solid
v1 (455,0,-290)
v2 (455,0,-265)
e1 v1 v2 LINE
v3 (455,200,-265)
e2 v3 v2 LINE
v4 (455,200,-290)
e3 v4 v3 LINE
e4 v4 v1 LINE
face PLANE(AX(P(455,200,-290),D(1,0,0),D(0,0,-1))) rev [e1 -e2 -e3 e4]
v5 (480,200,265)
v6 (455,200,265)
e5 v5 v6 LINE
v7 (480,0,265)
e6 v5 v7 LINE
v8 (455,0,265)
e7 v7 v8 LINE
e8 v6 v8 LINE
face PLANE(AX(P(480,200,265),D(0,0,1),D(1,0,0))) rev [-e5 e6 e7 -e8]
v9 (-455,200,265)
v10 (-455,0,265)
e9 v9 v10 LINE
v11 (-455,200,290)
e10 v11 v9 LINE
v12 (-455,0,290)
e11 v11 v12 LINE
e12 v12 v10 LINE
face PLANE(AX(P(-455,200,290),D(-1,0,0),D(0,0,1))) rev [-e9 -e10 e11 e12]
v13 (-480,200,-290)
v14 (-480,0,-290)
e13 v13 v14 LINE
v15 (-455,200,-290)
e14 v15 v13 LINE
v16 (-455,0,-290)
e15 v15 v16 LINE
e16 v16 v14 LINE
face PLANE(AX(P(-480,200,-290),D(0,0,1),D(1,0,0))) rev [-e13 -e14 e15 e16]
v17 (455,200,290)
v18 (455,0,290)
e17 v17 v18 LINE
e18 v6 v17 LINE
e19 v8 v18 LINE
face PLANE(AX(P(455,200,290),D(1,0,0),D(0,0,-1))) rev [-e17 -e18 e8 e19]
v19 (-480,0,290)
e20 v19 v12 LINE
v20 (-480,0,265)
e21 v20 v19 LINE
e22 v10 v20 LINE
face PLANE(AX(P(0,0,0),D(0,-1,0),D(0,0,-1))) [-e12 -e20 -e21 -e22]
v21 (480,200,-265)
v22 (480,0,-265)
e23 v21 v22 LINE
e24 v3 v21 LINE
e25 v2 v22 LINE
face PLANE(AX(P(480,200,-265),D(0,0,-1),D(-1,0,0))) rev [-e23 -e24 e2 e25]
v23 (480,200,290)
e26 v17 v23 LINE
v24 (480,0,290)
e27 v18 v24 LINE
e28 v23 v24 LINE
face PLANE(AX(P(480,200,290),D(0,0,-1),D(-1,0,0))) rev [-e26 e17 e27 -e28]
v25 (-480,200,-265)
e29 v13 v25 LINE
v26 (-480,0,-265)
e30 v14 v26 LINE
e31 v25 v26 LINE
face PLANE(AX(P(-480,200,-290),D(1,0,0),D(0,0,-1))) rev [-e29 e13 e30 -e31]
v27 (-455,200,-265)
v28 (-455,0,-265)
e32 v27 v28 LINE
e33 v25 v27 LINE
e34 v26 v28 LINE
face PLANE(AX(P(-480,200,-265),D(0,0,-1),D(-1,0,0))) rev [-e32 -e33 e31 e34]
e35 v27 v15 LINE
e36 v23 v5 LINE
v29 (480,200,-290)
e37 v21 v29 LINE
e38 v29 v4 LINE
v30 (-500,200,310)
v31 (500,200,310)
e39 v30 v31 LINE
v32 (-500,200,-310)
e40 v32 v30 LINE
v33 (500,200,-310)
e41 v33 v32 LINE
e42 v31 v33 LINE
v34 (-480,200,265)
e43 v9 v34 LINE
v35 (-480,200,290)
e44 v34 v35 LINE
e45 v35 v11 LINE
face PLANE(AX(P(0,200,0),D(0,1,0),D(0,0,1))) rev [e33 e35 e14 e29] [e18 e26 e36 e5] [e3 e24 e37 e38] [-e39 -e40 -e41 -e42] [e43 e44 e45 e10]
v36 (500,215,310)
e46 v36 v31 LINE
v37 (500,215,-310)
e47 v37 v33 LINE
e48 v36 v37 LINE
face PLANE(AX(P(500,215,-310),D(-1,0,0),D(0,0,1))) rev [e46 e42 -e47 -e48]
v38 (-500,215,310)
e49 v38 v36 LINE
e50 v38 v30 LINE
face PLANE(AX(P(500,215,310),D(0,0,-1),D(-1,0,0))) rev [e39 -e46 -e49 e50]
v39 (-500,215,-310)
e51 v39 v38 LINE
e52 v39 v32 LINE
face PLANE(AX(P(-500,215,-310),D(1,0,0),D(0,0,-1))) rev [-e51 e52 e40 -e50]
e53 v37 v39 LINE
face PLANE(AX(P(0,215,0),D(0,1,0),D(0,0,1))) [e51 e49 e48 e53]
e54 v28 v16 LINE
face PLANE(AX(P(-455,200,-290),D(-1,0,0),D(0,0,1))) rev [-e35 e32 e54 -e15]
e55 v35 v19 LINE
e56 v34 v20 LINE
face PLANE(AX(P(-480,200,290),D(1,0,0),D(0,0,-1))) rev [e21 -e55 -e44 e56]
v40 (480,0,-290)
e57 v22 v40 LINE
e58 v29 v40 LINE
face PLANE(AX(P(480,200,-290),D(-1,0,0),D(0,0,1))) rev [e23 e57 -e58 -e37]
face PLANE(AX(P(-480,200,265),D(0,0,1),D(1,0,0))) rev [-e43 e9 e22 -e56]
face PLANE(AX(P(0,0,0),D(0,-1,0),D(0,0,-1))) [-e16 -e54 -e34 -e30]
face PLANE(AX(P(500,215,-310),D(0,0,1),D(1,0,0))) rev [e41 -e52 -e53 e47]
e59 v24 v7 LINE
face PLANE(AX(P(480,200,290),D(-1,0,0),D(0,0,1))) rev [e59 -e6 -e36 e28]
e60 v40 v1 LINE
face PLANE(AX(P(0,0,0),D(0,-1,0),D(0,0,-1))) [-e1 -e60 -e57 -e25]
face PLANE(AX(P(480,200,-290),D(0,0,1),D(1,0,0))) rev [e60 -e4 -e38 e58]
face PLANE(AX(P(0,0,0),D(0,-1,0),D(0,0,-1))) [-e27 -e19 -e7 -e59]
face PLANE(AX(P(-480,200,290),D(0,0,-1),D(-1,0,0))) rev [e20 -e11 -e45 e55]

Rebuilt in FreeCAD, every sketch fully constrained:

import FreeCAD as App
import Part
import Sketcher

V = App.Vector
Q = App.Units.Quantity

doc = App.newDocument("Part")
body = doc.addObject("PartDesign::Body", "Body")

# Sketch on XZ plane
sketch1 = doc.addObject("Sketcher::SketchObject", "Sketch")
body.addObject(sketch1)
sketch1.AttachmentSupport = (doc.XZ_Plane, [""])
sketch1.MapMode = "FlatFace"
sketch1.addGeometry(Part.LineSegment(V(-480, 265, 0), V(-480, 290, 0)), False)
sketch1.addGeometry(Part.LineSegment(V(-480, 290, 0), V(-455, 290, 0)), False)
sketch1.addGeometry(Part.LineSegment(V(-455, 290, 0), V(-455, 265, 0)), False)
sketch1.addGeometry(Part.LineSegment(V(-455, 265, 0), V(-480, 265, 0)), False)
sketch1.addConstraint(Sketcher.Constraint("Coincident", 0, 2, 1, 1))
sketch1.addConstraint(Sketcher.Constraint("Coincident", 1, 2, 2, 1))
sketch1.addConstraint(Sketcher.Constraint("Coincident", 2, 2, 3, 1))
sketch1.addConstraint(Sketcher.Constraint("Coincident", 3, 2, 0, 1))
sketch1.addConstraint(Sketcher.Constraint("Vertical", 0))
sketch1.addConstraint(Sketcher.Constraint("Horizontal", 1))
sketch1.addConstraint(Sketcher.Constraint("Vertical", 2))
sketch1.addConstraint(Sketcher.Constraint("Horizontal", 3))
sketch1.addConstraint(Sketcher.Constraint("Equal", 3, 0))
sketch1.addConstraint(Sketcher.Constraint("DistanceX", 1, 1, 1, 2, Q("25 mm")))
sketch1.addConstraint(Sketcher.Constraint("DistanceX", 0, 2, -1, 1, Q("480 mm")))
sketch1.addConstraint(Sketcher.Constraint("DistanceY", -1, 1, 0, 2, Q("290 mm")))
pad1 = doc.addObject("PartDesign::Pad", "Pad")
body.addObject(pad1)
pad1.Profile = sketch1
pad1.Length = 200
pad1.Reversed = True
body2 = doc.addObject("PartDesign::Body", "Body001")

# Sketch on XZ plane
sketch2 = doc.addObject("Sketcher::SketchObject", "Sketch001")
body2.addObject(sketch2)
sketch2.AttachmentSupport = (doc.getObject("XZ_Plane001"), [""])
sketch2.MapMode = "FlatFace"
sketch2.addGeometry(Part.LineSegment(V(-480, -290, 0), V(-480, -265, 0)), False)
sketch2.addGeometry(Part.LineSegment(V(-480, -265, 0), V(-455, -265, 0)), False)
sketch2.addGeometry(Part.LineSegment(V(-455, -265, 0), V(-455, -290, 0)), False)
sketch2.addGeometry(Part.LineSegment(V(-455, -290, 0), V(-480, -290, 0)), False)
sketch2.addConstraint(Sketcher.Constraint("Coincident", 0, 2, 1, 1))
sketch2.addConstraint(Sketcher.Constraint("Coincident", 1, 2, 2, 1))
sketch2.addConstraint(Sketcher.Constraint("Coincident", 2, 2, 3, 1))
sketch2.addConstraint(Sketcher.Constraint("Coincident", 3, 2, 0, 1))
sketch2.addConstraint(Sketcher.Constraint("Vertical", 0))
sketch2.addConstraint(Sketcher.Constraint("Horizontal", 1))
sketch2.addConstraint(Sketcher.Constraint("Vertical", 2))
sketch2.addConstraint(Sketcher.Constraint("Horizontal", 3))
sketch2.addConstraint(Sketcher.Constraint("Equal", 3, 0))
sketch2.addConstraint(Sketcher.Constraint("DistanceX", 1, 1, 1, 2, Q("25 mm")))
sketch2.addConstraint(Sketcher.Constraint("DistanceX", 0, 2, -1, 1, Q("480 mm")))
sketch2.addConstraint(Sketcher.Constraint("DistanceY", 0, 2, -1, 1, Q("265 mm")))
pad2 = doc.addObject("PartDesign::Pad", "Pad001")
body2.addObject(pad2)
pad2.Profile = sketch2
pad2.Length = 200
pad2.Reversed = True
body3 = doc.addObject("PartDesign::Body", "Body002")

# Sketch on XZ plane
sketch3 = doc.addObject("Sketcher::SketchObject", "Sketch002")
body3.addObject(sketch3)
sketch3.AttachmentSupport = (doc.getObject("XZ_Plane002"), [""])
sketch3.MapMode = "FlatFace"
sketch3.addGeometry(Part.LineSegment(V(455, -290, 0), V(455, -265, 0)), False)
sketch3.addGeometry(Part.LineSegment(V(455, -265, 0), V(480, -265, 0)), False)
sketch3.addGeometry(Part.LineSegment(V(480, -265, 0), V(480, -290, 0)), False)
sketch3.addGeometry(Part.LineSegment(V(480, -290, 0), V(455, -290, 0)), False)
sketch3.addConstraint(Sketcher.Constraint("Coincident", 0, 2, 1, 1))
sketch3.addConstraint(Sketcher.Constraint("Coincident", 1, 2, 2, 1))
sketch3.addConstraint(Sketcher.Constraint("Coincident", 2, 2, 3, 1))
sketch3.addConstraint(Sketcher.Constraint("Coincident", 3, 2, 0, 1))
sketch3.addConstraint(Sketcher.Constraint("Vertical", 0))
sketch3.addConstraint(Sketcher.Constraint("Horizontal", 1))
sketch3.addConstraint(Sketcher.Constraint("Vertical", 2))
sketch3.addConstraint(Sketcher.Constraint("Horizontal", 3))
sketch3.addConstraint(Sketcher.Constraint("Equal", 3, 0))
sketch3.addConstraint(Sketcher.Constraint("DistanceX", 1, 1, 1, 2, Q("25 mm")))
sketch3.addConstraint(Sketcher.Constraint("DistanceX", -1, 1, 0, 2, Q("455 mm")))
sketch3.addConstraint(Sketcher.Constraint("DistanceY", 0, 2, -1, 1, Q("265 mm")))
pad3 = doc.addObject("PartDesign::Pad", "Pad002")
body3.addObject(pad3)
pad3.Profile = sketch3
pad3.Length = 200
pad3.Reversed = True
body4 = doc.addObject("PartDesign::Body", "Body003")

# Sketch on XZ plane
sketch4 = doc.addObject("Sketcher::SketchObject", "Sketch003")
body4.addObject(sketch4)
sketch4.AttachmentSupport = (doc.getObject("XZ_Plane003"), [""])
sketch4.MapMode = "FlatFace"
sketch4.addGeometry(Part.LineSegment(V(455, 265, 0), V(455, 290, 0)), False)
sketch4.addGeometry(Part.LineSegment(V(455, 290, 0), V(480, 290, 0)), False)
sketch4.addGeometry(Part.LineSegment(V(480, 290, 0), V(480, 265, 0)), False)
sketch4.addGeometry(Part.LineSegment(V(480, 265, 0), V(455, 265, 0)), False)
sketch4.addConstraint(Sketcher.Constraint("Coincident", 0, 2, 1, 1))
sketch4.addConstraint(Sketcher.Constraint("Coincident", 1, 2, 2, 1))
sketch4.addConstraint(Sketcher.Constraint("Coincident", 2, 2, 3, 1))
sketch4.addConstraint(Sketcher.Constraint("Coincident", 3, 2, 0, 1))
sketch4.addConstraint(Sketcher.Constraint("Vertical", 0))
sketch4.addConstraint(Sketcher.Constraint("Horizontal", 1))
sketch4.addConstraint(Sketcher.Constraint("Vertical", 2))
sketch4.addConstraint(Sketcher.Constraint("Horizontal", 3))
sketch4.addConstraint(Sketcher.Constraint("Equal", 3, 0))
sketch4.addConstraint(Sketcher.Constraint("DistanceX", 1, 1, 1, 2, Q("25 mm")))
sketch4.addConstraint(Sketcher.Constraint("DistanceX", -1, 1, 0, 2, Q("455 mm")))
sketch4.addConstraint(Sketcher.Constraint("DistanceY", -1, 1, 0, 2, Q("290 mm")))
pad4 = doc.addObject("PartDesign::Pad", "Pad003")
body4.addObject(pad4)
pad4.Profile = sketch4
pad4.Length = 200
pad4.Reversed = True
body.AllowCompound = True
doc.recompute()

boolean = doc.addObject("PartDesign::Boolean", "Boolean")
body.addObject(boolean)
boolean.Type = "Fuse"
boolean.addObjects([body2])
doc.recompute()

boolean2 = doc.addObject("PartDesign::Boolean", "Boolean001")
body.addObject(boolean2)
boolean2.Type = "Fuse"
boolean2.addObjects([body3])
doc.recompute()

boolean3 = doc.addObject("PartDesign::Boolean", "Boolean002")
body.addObject(boolean3)
boolean3.Type = "Fuse"
boolean3.addObjects([body4])

# Sketch on XZ plane
sketch5 = doc.addObject("Sketcher::SketchObject", "Sketch004")
body.addObject(sketch5)
sketch5.AttachmentSupport = (doc.XZ_Plane, [""])
sketch5.MapMode = "FlatFace"
sketch5.AttachmentOffset = App.Placement(V(0, 0, -200), App.Rotation())
sketch5.addGeometry(Part.LineSegment(V(-500, -310, 0), V(-500, 310, 0)), False)
sketch5.addGeometry(Part.LineSegment(V(-500, 310, 0), V(500, 310, 0)), False)
sketch5.addGeometry(Part.LineSegment(V(500, 310, 0), V(500, -310, 0)), False)
sketch5.addGeometry(Part.LineSegment(V(500, -310, 0), V(-500, -310, 0)), False)
sketch5.addConstraint(Sketcher.Constraint("Coincident", 0, 2, 1, 1))
sketch5.addConstraint(Sketcher.Constraint("Coincident", 1, 2, 2, 1))
sketch5.addConstraint(Sketcher.Constraint("Coincident", 2, 2, 3, 1))
sketch5.addConstraint(Sketcher.Constraint("Coincident", 3, 2, 0, 1))
sketch5.addConstraint(Sketcher.Constraint("Vertical", 0))
sketch5.addConstraint(Sketcher.Constraint("Horizontal", 1))
sketch5.addConstraint(Sketcher.Constraint("Vertical", 2))
sketch5.addConstraint(Sketcher.Constraint("Horizontal", 3))
sketch5.addConstraint(Sketcher.Constraint("Symmetric", 0, 2, 2, 2, -1, 1))
sketch5.addConstraint(Sketcher.Constraint("DistanceX", 1, 1, 1, 2, Q("1000 mm")))
sketch5.addConstraint(Sketcher.Constraint("DistanceY", 0, 1, 0, 2, Q("620 mm")))
pad5 = doc.addObject("PartDesign::Pad", "Pad004")
body.addObject(pad5)
pad5.Profile = sketch5
pad5.Length = 15
pad5.Reversed = True

doc.recompute()
